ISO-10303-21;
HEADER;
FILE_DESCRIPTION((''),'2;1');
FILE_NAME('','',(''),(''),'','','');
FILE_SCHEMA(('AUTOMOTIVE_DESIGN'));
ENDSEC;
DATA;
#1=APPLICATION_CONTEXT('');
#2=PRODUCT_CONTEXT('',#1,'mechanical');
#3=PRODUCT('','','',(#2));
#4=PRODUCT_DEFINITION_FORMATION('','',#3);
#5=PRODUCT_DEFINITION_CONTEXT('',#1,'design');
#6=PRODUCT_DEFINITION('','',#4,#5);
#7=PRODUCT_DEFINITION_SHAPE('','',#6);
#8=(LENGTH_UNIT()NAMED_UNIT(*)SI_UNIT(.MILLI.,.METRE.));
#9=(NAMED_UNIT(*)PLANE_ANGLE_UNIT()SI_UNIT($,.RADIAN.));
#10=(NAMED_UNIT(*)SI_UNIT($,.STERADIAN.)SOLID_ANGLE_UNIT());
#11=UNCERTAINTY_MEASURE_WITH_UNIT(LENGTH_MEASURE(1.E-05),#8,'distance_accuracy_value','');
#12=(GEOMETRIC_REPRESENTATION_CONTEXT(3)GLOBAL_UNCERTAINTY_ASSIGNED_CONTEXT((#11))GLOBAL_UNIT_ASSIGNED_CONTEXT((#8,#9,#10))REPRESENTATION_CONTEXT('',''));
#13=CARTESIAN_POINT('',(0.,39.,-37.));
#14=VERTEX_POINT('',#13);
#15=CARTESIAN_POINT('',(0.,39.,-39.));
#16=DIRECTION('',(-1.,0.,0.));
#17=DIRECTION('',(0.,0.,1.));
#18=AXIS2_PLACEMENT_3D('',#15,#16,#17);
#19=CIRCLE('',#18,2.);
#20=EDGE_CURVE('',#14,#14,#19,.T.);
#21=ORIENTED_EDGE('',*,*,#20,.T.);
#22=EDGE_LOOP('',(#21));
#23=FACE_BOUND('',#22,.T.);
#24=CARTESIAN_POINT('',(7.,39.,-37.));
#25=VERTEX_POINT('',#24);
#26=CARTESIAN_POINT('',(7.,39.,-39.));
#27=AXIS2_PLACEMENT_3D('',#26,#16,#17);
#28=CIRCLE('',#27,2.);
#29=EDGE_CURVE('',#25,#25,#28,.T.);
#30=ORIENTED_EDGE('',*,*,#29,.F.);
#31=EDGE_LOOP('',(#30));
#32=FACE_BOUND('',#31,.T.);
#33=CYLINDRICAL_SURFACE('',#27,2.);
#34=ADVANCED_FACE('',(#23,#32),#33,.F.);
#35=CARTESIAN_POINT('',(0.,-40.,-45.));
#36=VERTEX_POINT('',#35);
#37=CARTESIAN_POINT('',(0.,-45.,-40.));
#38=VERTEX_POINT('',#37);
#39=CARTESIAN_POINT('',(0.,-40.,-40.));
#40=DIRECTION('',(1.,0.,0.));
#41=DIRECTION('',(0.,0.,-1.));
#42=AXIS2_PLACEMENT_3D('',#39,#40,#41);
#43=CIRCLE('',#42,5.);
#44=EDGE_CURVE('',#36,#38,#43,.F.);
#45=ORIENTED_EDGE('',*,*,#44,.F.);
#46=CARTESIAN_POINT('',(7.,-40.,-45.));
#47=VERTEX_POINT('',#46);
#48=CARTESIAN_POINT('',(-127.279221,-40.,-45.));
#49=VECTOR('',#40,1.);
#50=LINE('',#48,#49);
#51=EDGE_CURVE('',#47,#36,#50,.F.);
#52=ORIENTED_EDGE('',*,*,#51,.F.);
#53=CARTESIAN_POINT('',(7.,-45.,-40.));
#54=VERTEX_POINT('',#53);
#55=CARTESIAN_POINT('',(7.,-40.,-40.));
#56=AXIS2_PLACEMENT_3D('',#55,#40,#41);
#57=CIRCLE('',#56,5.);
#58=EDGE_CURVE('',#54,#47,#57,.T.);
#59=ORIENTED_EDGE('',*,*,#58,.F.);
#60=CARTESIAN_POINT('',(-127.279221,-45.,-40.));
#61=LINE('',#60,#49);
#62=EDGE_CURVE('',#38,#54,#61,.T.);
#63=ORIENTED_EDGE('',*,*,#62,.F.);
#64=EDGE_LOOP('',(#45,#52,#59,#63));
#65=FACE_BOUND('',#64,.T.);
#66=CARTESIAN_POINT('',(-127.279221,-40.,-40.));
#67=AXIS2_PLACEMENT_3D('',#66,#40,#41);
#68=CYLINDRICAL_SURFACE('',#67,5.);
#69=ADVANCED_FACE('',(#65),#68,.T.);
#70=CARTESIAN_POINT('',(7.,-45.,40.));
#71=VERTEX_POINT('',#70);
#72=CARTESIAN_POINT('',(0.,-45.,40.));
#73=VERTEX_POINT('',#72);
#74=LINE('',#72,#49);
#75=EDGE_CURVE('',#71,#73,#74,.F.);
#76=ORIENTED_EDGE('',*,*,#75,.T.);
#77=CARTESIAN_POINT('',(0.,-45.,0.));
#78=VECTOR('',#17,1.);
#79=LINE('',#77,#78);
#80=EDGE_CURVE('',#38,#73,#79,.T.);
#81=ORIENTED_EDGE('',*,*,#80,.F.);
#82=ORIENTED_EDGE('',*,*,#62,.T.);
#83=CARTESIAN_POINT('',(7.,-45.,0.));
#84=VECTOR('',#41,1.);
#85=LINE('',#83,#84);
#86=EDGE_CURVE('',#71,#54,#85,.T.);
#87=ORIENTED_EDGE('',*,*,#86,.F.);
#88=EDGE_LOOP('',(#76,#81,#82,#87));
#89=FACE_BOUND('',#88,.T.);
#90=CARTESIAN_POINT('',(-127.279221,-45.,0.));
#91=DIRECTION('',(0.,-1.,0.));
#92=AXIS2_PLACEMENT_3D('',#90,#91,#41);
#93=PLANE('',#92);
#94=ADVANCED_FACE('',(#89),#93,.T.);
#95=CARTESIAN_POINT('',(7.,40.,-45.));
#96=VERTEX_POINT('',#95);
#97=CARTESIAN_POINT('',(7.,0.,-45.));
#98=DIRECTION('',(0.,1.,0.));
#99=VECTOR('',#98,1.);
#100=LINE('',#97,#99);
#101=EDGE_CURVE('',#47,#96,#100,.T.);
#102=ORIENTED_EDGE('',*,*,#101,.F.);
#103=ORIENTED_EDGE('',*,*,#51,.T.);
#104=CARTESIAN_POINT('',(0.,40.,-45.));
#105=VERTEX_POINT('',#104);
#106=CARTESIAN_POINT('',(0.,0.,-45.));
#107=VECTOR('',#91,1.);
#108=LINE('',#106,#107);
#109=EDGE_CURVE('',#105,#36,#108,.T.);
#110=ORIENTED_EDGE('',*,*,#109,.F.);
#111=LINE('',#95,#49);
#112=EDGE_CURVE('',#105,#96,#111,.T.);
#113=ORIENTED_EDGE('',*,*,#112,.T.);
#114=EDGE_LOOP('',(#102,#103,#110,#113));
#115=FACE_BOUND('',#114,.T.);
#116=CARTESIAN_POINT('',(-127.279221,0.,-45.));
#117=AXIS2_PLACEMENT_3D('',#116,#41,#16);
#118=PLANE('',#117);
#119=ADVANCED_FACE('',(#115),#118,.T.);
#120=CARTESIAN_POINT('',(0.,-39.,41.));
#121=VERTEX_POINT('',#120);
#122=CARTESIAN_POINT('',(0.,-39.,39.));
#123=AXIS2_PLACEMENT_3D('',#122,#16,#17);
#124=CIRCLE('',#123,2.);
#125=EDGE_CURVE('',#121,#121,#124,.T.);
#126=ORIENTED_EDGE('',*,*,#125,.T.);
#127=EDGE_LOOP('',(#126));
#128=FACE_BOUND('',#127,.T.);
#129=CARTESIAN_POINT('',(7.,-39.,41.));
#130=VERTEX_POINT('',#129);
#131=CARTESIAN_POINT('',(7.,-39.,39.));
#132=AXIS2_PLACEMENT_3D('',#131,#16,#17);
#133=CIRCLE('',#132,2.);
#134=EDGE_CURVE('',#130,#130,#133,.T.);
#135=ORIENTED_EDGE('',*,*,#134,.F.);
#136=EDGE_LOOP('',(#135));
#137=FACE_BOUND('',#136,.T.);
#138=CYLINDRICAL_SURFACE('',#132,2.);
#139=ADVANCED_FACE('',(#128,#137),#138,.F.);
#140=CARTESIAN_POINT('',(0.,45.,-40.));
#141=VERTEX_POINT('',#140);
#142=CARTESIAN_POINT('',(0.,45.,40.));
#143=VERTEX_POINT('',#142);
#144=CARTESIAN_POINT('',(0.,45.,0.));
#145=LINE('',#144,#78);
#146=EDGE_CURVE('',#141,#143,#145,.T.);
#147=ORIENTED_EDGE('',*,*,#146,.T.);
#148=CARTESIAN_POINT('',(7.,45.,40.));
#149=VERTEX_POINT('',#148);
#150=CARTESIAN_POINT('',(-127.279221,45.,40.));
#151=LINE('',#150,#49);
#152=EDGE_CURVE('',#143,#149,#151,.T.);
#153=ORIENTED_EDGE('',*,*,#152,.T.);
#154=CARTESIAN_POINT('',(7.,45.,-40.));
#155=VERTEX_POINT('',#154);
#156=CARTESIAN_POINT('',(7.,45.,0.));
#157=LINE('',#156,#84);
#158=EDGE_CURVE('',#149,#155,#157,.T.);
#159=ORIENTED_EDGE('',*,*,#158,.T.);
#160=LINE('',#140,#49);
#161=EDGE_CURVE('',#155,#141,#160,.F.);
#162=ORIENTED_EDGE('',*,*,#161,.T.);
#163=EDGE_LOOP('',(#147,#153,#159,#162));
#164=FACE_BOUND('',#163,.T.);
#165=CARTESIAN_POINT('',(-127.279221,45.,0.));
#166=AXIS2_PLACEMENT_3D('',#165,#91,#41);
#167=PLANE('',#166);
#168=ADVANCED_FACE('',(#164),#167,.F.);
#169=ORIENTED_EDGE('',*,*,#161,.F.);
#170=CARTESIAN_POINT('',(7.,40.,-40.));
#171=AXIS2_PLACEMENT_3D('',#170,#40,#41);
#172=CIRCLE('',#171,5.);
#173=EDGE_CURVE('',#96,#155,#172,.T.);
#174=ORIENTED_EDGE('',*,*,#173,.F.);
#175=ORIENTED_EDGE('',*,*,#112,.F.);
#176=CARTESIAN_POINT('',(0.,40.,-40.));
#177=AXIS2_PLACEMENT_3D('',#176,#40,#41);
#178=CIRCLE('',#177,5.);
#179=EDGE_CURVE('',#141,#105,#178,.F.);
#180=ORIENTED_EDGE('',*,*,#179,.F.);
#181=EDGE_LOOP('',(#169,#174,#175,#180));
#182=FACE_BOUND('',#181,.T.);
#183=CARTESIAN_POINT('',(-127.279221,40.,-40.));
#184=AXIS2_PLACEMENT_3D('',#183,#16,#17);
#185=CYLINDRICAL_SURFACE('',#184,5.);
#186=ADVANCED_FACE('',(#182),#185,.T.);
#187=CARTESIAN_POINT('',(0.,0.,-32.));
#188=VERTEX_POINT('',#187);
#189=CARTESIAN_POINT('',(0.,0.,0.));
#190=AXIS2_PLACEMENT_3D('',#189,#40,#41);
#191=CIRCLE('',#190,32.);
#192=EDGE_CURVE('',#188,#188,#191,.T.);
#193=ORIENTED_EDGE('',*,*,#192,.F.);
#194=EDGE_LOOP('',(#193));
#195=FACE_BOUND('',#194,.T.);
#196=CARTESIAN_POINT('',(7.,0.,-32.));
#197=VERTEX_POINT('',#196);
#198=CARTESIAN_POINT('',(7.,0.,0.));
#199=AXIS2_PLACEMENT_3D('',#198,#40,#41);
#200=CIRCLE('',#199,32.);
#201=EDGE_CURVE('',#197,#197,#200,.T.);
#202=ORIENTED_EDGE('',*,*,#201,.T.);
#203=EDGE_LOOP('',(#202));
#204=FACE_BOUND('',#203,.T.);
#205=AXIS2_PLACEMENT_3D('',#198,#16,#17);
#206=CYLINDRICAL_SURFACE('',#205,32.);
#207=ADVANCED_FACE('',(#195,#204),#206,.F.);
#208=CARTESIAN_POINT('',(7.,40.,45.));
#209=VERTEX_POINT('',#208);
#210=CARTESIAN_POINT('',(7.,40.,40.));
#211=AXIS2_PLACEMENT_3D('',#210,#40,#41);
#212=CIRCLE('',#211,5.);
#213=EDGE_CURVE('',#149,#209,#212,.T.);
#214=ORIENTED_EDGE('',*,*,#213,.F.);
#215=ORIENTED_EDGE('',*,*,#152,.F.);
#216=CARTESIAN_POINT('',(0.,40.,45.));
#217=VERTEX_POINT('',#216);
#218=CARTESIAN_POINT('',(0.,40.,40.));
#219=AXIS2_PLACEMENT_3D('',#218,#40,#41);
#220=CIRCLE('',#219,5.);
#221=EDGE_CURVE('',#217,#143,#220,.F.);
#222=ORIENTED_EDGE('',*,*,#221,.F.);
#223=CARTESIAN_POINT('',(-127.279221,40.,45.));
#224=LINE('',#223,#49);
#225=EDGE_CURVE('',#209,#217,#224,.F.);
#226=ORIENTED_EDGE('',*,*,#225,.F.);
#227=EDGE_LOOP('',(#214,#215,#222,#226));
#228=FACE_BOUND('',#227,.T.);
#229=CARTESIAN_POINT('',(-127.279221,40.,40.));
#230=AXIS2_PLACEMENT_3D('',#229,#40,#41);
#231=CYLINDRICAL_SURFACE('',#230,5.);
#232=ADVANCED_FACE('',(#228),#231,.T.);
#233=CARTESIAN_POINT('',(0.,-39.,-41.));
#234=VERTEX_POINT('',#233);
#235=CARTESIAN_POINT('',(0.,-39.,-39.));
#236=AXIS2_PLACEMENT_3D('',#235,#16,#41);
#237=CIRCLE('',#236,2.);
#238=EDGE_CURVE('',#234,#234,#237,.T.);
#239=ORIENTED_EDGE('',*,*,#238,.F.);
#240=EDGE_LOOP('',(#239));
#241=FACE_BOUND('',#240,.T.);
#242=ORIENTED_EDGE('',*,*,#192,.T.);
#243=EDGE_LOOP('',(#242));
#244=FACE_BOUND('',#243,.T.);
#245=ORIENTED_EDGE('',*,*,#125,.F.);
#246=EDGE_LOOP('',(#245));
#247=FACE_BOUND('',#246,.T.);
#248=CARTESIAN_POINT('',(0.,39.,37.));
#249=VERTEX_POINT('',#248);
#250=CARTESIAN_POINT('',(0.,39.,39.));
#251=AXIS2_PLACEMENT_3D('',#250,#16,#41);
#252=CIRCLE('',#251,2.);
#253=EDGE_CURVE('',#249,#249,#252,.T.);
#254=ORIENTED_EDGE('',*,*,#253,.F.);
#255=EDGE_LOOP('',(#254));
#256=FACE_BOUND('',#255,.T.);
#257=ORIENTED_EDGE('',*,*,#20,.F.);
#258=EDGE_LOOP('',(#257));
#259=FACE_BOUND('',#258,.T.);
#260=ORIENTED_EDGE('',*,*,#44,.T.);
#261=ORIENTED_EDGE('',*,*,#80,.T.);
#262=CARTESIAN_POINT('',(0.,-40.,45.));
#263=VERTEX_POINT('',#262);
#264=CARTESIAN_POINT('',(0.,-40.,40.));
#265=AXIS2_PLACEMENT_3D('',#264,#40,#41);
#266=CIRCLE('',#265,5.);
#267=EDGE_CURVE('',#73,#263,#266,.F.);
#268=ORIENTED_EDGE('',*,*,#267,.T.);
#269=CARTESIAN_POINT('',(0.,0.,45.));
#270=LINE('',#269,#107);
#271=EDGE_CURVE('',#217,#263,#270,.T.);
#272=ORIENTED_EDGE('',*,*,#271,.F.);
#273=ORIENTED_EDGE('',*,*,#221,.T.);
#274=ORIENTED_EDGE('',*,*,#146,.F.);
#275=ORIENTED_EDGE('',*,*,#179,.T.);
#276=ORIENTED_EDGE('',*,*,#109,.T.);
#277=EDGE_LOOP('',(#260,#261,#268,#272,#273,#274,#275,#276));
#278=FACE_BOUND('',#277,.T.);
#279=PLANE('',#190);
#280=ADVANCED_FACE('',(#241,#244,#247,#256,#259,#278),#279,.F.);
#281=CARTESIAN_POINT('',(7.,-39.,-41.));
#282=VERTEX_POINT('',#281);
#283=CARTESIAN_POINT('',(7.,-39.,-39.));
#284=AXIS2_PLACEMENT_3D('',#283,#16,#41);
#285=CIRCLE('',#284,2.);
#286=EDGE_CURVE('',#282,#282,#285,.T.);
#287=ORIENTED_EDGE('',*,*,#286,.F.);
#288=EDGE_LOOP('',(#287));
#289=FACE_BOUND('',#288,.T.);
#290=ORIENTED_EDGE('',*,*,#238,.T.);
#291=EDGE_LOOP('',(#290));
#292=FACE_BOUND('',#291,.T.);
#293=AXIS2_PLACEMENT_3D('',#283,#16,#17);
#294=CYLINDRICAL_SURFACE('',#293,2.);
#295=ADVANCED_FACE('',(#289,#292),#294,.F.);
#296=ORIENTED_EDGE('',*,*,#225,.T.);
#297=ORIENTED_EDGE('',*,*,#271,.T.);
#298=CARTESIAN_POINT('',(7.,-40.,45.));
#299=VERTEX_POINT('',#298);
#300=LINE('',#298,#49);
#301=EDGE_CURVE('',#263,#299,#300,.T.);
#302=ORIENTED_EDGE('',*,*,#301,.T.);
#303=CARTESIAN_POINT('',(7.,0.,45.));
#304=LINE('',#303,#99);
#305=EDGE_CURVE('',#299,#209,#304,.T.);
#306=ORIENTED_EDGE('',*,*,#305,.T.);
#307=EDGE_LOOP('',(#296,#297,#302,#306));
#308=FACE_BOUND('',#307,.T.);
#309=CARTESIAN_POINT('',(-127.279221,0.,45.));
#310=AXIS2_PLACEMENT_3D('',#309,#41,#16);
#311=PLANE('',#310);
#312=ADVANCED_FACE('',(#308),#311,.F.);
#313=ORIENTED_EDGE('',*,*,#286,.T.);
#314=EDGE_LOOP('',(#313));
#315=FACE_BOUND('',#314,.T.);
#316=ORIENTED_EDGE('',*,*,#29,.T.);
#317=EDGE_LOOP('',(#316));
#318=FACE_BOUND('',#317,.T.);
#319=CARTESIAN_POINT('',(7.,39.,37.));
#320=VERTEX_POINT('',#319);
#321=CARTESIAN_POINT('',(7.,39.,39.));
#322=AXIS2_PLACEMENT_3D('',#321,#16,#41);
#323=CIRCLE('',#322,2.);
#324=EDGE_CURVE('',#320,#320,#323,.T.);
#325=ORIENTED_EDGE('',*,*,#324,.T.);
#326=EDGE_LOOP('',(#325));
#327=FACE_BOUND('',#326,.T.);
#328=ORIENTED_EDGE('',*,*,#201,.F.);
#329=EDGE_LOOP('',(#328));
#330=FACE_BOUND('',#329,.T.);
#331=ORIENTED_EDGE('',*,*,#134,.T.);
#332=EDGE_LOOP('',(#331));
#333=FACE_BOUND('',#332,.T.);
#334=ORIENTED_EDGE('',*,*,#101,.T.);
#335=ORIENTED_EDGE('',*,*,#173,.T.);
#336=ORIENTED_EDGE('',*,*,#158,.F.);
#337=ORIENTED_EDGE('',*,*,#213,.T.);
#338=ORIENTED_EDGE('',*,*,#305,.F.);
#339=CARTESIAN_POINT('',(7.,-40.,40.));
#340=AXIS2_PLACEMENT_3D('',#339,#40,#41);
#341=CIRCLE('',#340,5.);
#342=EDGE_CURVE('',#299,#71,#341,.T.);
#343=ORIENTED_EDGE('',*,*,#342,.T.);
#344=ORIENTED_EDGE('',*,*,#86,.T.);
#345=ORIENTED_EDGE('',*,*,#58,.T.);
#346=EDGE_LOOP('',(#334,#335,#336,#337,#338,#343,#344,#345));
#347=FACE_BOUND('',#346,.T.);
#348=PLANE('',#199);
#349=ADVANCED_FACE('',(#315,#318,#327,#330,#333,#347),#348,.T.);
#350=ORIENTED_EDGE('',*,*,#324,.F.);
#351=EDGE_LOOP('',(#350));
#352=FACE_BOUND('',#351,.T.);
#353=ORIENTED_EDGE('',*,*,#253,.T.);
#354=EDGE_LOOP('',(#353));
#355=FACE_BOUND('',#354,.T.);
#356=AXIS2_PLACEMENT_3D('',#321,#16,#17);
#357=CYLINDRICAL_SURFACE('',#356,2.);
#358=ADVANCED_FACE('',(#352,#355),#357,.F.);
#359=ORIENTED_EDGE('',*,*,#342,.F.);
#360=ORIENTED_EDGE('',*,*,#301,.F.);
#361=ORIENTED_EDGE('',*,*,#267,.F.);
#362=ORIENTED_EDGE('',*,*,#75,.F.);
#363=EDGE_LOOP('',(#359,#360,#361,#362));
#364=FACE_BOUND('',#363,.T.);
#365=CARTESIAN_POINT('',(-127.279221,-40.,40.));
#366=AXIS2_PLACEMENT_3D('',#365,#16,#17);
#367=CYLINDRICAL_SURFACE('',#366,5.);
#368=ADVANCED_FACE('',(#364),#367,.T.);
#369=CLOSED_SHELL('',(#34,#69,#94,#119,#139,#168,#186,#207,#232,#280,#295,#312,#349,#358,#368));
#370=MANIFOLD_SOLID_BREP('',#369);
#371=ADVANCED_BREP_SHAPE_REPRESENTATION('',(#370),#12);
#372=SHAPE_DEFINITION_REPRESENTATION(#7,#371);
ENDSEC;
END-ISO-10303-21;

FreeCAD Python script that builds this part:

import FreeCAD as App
import Part
import Sketcher

V = App.Vector
Q = App.Units.Quantity


def edges_at(feature, points):
    """Names of the edges that pass closest to the given points."""
    edges = feature.Shape.Edges
    near = lambda p: min(range(len(edges)), key=lambda i: edges[i].distToShape(Part.Vertex(*p))[0])
    return sorted({f"Edge{near(p) + 1}" for p in points})

doc = App.newDocument("Part")
body = doc.addObject("PartDesign::Body", "Body")

sketch1 = doc.addObject("Sketcher::SketchObject", "Sketch")
body.addObject(sketch1)
sketch1.AttachmentSupport = (doc.YZ_Plane, [""])
sketch1.MapMode = "FlatFace"
sketch1.addGeometry(Part.Circle(V(0, 0, 0), V(0, 0, 1), 45), False)
sketch1.addGeometry(Part.Circle(V(0, 0, 0), V(0, 0, 1), 32), False)
sketch1.addConstraint(Sketcher.Constraint("Coincident", 0, 3, -1, 1))
sketch1.addConstraint(Sketcher.Constraint("Coincident", 1, 3, -1, 1))
sketch1.addConstraint(Sketcher.Constraint("Diameter", 0, Q("90 mm")))
sketch1.addConstraint(Sketcher.Constraint("Diameter", 1, Q("64 mm")))
pad1 = doc.addObject("PartDesign::Pad", "Pad")
body.addObject(pad1)
pad1.Profile = sketch1
pad1.Length = 7

sketch2 = doc.addObject("Sketcher::SketchObject", "Sketch001")
body.addObject(sketch2)
sketch2.AttachmentSupport = (doc.YZ_Plane, [""])
sketch2.MapMode = "FlatFace"
sketch2.AttachmentOffset = App.Placement(V(0, 0, 7), App.Rotation())
sketch2.addGeometry(Part.Circle(V(38, 0, 0), V(0, 0, 1), 2.5), False)
sketch2.addGeometry(Part.Circle(V(19, -32.9, 0), V(0, 0, 1), 2.5), False)
sketch2.addGeometry(Part.Circle(V(-19, -32.9, 0), V(0, 0, 1), 2.5), False)
sketch2.addGeometry(Part.Circle(V(-38, 0, 0), V(0, 0, 1), 2.5), False)
sketch2.addGeometry(Part.Circle(V(-19, 32.9, 0), V(0, 0, 1), 2.5), False)
sketch2.addGeometry(Part.Circle(V(19, 32.9, 0), V(0, 0, 1), 2.5), False)
sketch2.addGeometry(Part.Circle(V(32.4, 20.8, 0), V(0, 0, 1), 4), False)
sketch2.addGeometry(Part.Circle(V(1.9, -38.5, 0), V(0, 0, 1), 4), False)
sketch2.addGeometry(Part.Circle(V(-34.2, 17.6, 0), V(0, 0, 1), 4), False)
sketch2.addConstraint(Sketcher.Constraint("Equal", 0, 1))
sketch2.addConstraint(Sketcher.Constraint("Equal", 1, 2))
sketch2.addConstraint(Sketcher.Constraint("Equal", 2, 3))
sketch2.addConstraint(Sketcher.Constraint("Equal", 3, 4))
sketch2.addConstraint(Sketcher.Constraint("Equal", 4, 5))
sketch2.addConstraint(Sketcher.Constraint("Equal", 6, 7))
sketch2.addConstraint(Sketcher.Constraint("Equal", 7, 8))
sketch2.addConstraint(Sketcher.Constraint("Symmetric", 0, 3, 3, 3, -1, 1))
sketch2.addConstraint(Sketcher.Constraint("Symmetric", 1, 3, 4, 3, -1, 1))
sketch2.addConstraint(Sketcher.Constraint("Symmetric", 2, 3, 5, 3, -1, 1))
sketch2.addConstraint(Sketcher.Constraint("Symmetric", 1, 3, 2, 3, -2))
sketch2.addConstraint(Sketcher.Constraint("PointOnObject", 0, 3, -1))
sketch2.addConstraint(Sketcher.Constraint("Diameter", 0, Q("5 mm")))
sketch2.addConstraint(Sketcher.Constraint("Diameter", 6, Q("8 mm")))
sketch2.addConstraint(Sketcher.Constraint("DistanceX", -1, 1, 0, 3, Q("38 mm")))
sketch2.addConstraint(Sketcher.Constraint("DistanceX", -1, 1, 1, 3, Q("19 mm")))
sketch2.addConstraint(Sketcher.Constraint("DistanceY", -1, 1, 6, 3, Q("20.848699 mm")))
sketch2.addConstraint(Sketcher.Constraint("DistanceX", -1, 1, 7, 3, Q("1.872319 mm")))
sketch2.addConstraint(Sketcher.Constraint("DistanceY", 2, 3, 4, 3, Q("65.817931 mm")))
sketch2.addConstraint(Sketcher.Constraint("DistanceY", 7, 3, 1, 3, Q("5.545481 mm")))
sketch2.addConstraint(Sketcher.Constraint("DistanceX", 7, 3, 6, 3, Q("30.494048 mm")))
sketch2.addConstraint(Sketcher.Constraint("DistanceY", 8, 3, 4, 3, Q("15.303218 mm")))
sketch2.addConstraint(Sketcher.Constraint("DistanceX", 8, 3, -1, 1, Q("34.238687 mm")))
pocket1 = doc.addObject("PartDesign::Pocket", "Pocket")
body.addObject(pocket1)
pocket1.Profile = sketch2
pocket1.Type = "ThroughAll"

sketch3 = doc.addObject("Sketcher::SketchObject", "Sketch002")
body.addObject(sketch3)
sketch3.AttachmentSupport = (doc.YZ_Plane, [""])
sketch3.MapMode = "FlatFace"
sketch3.addGeometry(Part.LineSegment(V(45, 45, 0), V(-45, 45, 0)), False)
sketch3.addGeometry(Part.LineSegment(V(-45, 45, 0), V(-45, -45, 0)), False)
sketch3.addGeometry(Part.LineSegment(V(-45, -45, 0), V(45, -45, 0)), False)
sketch3.addGeometry(Part.LineSegment(V(45, -45, 0), V(45, 45, 0)), False)
sketch3.addGeometry(Part.Circle(V(0, 0, 0), V(0, 0, 1), 32), False)
sketch3.addConstraint(Sketcher.Constraint("Coincident", 0, 2, 1, 1))
sketch3.addConstraint(Sketcher.Constraint("Coincident", 1, 2, 2, 1))
sketch3.addConstraint(Sketcher.Constraint("Coincident", 2, 2, 3, 1))
sketch3.addConstraint(Sketcher.Constraint("Coincident", 3, 2, 0, 1))
sketch3.addConstraint(Sketcher.Constraint("Horizontal", 0))
sketch3.addConstraint(Sketcher.Constraint("Vertical", 1))
sketch3.addConstraint(Sketcher.Constraint("Horizontal", 2))
sketch3.addConstraint(Sketcher.Constraint("Vertical", 3))
sketch3.addConstraint(Sketcher.Constraint("Coincident", 4, 3, -1, 1))
sketch3.addConstraint(Sketcher.Constraint("Symmetric", 0, 2, 2, 2, -1, 1))
sketch3.addConstraint(Sketcher.Constraint("Equal", 2, 1))
sketch3.addConstraint(Sketcher.Constraint("Diameter", 4, Q("64 mm")))
sketch3.addConstraint(Sketcher.Constraint("DistanceX", 0, 2, 0, 1, Q("90 mm")))
pad2 = doc.addObject("PartDesign::Pad", "Pad001")
body.addObject(pad2)
pad2.Profile = sketch3
pad2.Length = 7

sketch4 = doc.addObject("Sketcher::SketchObject", "Sketch003")
body.addObject(sketch4)
sketch4.AttachmentSupport = (doc.YZ_Plane, [""])
sketch4.MapMode = "FlatFace"
sketch4.addGeometry(Part.Circle(V(39, -39, 0), V(0, 0, 1), 2), False)
sketch4.addGeometry(Part.Circle(V(39, 39, 0), V(0, 0, 1), 2), False)
sketch4.addGeometry(Part.Circle(V(-39, 39, 0), V(0, 0, 1), 2), False)
sketch4.addGeometry(Part.Circle(V(-39, -39, 0), V(0, 0, 1), 2), False)
sketch4.addConstraint(Sketcher.Constraint("Equal", 0, 1))
sketch4.addConstraint(Sketcher.Constraint("Equal", 1, 2))
sketch4.addConstraint(Sketcher.Constraint("Equal", 2, 3))
sketch4.addConstraint(Sketcher.Constraint("Symmetric", 0, 3, 2, 3, -1, 1))
sketch4.addConstraint(Sketcher.Constraint("Symmetric", 1, 3, 3, 3, -1, 1))
sketch4.addConstraint(Sketcher.Constraint("Symmetric", 1, 3, 2, 3, -2))
sketch4.addConstraint(Sketcher.Constraint("Diameter", 0, Q("4 mm")))
sketch4.addConstraint(Sketcher.Constraint("DistanceX", -1, 1, 0, 3, Q("39 mm")))
sketch4.addConstraint(Sketcher.Constraint("DistanceY", 0, 3, -1, 1, Q("39 mm")))
pocket2 = doc.addObject("PartDesign::Pocket", "Pocket001")
body.addObject(pocket2)
pocket2.Profile = sketch4
pocket2.Type = "ThroughAll"
pocket2.Reversed = True
doc.recompute()

fillet = doc.addObject("PartDesign::Fillet", "Fillet")
body.addObject(fillet)
fillet.Base = (pocket2, edges_at(pocket2, [
    (3.5, -45, 45),
    (3.5, 45, 45),
    (3.5, -45, -45),
    (3.5, 45, -45),
]))
fillet.Radius = 5

doc.recompute()
